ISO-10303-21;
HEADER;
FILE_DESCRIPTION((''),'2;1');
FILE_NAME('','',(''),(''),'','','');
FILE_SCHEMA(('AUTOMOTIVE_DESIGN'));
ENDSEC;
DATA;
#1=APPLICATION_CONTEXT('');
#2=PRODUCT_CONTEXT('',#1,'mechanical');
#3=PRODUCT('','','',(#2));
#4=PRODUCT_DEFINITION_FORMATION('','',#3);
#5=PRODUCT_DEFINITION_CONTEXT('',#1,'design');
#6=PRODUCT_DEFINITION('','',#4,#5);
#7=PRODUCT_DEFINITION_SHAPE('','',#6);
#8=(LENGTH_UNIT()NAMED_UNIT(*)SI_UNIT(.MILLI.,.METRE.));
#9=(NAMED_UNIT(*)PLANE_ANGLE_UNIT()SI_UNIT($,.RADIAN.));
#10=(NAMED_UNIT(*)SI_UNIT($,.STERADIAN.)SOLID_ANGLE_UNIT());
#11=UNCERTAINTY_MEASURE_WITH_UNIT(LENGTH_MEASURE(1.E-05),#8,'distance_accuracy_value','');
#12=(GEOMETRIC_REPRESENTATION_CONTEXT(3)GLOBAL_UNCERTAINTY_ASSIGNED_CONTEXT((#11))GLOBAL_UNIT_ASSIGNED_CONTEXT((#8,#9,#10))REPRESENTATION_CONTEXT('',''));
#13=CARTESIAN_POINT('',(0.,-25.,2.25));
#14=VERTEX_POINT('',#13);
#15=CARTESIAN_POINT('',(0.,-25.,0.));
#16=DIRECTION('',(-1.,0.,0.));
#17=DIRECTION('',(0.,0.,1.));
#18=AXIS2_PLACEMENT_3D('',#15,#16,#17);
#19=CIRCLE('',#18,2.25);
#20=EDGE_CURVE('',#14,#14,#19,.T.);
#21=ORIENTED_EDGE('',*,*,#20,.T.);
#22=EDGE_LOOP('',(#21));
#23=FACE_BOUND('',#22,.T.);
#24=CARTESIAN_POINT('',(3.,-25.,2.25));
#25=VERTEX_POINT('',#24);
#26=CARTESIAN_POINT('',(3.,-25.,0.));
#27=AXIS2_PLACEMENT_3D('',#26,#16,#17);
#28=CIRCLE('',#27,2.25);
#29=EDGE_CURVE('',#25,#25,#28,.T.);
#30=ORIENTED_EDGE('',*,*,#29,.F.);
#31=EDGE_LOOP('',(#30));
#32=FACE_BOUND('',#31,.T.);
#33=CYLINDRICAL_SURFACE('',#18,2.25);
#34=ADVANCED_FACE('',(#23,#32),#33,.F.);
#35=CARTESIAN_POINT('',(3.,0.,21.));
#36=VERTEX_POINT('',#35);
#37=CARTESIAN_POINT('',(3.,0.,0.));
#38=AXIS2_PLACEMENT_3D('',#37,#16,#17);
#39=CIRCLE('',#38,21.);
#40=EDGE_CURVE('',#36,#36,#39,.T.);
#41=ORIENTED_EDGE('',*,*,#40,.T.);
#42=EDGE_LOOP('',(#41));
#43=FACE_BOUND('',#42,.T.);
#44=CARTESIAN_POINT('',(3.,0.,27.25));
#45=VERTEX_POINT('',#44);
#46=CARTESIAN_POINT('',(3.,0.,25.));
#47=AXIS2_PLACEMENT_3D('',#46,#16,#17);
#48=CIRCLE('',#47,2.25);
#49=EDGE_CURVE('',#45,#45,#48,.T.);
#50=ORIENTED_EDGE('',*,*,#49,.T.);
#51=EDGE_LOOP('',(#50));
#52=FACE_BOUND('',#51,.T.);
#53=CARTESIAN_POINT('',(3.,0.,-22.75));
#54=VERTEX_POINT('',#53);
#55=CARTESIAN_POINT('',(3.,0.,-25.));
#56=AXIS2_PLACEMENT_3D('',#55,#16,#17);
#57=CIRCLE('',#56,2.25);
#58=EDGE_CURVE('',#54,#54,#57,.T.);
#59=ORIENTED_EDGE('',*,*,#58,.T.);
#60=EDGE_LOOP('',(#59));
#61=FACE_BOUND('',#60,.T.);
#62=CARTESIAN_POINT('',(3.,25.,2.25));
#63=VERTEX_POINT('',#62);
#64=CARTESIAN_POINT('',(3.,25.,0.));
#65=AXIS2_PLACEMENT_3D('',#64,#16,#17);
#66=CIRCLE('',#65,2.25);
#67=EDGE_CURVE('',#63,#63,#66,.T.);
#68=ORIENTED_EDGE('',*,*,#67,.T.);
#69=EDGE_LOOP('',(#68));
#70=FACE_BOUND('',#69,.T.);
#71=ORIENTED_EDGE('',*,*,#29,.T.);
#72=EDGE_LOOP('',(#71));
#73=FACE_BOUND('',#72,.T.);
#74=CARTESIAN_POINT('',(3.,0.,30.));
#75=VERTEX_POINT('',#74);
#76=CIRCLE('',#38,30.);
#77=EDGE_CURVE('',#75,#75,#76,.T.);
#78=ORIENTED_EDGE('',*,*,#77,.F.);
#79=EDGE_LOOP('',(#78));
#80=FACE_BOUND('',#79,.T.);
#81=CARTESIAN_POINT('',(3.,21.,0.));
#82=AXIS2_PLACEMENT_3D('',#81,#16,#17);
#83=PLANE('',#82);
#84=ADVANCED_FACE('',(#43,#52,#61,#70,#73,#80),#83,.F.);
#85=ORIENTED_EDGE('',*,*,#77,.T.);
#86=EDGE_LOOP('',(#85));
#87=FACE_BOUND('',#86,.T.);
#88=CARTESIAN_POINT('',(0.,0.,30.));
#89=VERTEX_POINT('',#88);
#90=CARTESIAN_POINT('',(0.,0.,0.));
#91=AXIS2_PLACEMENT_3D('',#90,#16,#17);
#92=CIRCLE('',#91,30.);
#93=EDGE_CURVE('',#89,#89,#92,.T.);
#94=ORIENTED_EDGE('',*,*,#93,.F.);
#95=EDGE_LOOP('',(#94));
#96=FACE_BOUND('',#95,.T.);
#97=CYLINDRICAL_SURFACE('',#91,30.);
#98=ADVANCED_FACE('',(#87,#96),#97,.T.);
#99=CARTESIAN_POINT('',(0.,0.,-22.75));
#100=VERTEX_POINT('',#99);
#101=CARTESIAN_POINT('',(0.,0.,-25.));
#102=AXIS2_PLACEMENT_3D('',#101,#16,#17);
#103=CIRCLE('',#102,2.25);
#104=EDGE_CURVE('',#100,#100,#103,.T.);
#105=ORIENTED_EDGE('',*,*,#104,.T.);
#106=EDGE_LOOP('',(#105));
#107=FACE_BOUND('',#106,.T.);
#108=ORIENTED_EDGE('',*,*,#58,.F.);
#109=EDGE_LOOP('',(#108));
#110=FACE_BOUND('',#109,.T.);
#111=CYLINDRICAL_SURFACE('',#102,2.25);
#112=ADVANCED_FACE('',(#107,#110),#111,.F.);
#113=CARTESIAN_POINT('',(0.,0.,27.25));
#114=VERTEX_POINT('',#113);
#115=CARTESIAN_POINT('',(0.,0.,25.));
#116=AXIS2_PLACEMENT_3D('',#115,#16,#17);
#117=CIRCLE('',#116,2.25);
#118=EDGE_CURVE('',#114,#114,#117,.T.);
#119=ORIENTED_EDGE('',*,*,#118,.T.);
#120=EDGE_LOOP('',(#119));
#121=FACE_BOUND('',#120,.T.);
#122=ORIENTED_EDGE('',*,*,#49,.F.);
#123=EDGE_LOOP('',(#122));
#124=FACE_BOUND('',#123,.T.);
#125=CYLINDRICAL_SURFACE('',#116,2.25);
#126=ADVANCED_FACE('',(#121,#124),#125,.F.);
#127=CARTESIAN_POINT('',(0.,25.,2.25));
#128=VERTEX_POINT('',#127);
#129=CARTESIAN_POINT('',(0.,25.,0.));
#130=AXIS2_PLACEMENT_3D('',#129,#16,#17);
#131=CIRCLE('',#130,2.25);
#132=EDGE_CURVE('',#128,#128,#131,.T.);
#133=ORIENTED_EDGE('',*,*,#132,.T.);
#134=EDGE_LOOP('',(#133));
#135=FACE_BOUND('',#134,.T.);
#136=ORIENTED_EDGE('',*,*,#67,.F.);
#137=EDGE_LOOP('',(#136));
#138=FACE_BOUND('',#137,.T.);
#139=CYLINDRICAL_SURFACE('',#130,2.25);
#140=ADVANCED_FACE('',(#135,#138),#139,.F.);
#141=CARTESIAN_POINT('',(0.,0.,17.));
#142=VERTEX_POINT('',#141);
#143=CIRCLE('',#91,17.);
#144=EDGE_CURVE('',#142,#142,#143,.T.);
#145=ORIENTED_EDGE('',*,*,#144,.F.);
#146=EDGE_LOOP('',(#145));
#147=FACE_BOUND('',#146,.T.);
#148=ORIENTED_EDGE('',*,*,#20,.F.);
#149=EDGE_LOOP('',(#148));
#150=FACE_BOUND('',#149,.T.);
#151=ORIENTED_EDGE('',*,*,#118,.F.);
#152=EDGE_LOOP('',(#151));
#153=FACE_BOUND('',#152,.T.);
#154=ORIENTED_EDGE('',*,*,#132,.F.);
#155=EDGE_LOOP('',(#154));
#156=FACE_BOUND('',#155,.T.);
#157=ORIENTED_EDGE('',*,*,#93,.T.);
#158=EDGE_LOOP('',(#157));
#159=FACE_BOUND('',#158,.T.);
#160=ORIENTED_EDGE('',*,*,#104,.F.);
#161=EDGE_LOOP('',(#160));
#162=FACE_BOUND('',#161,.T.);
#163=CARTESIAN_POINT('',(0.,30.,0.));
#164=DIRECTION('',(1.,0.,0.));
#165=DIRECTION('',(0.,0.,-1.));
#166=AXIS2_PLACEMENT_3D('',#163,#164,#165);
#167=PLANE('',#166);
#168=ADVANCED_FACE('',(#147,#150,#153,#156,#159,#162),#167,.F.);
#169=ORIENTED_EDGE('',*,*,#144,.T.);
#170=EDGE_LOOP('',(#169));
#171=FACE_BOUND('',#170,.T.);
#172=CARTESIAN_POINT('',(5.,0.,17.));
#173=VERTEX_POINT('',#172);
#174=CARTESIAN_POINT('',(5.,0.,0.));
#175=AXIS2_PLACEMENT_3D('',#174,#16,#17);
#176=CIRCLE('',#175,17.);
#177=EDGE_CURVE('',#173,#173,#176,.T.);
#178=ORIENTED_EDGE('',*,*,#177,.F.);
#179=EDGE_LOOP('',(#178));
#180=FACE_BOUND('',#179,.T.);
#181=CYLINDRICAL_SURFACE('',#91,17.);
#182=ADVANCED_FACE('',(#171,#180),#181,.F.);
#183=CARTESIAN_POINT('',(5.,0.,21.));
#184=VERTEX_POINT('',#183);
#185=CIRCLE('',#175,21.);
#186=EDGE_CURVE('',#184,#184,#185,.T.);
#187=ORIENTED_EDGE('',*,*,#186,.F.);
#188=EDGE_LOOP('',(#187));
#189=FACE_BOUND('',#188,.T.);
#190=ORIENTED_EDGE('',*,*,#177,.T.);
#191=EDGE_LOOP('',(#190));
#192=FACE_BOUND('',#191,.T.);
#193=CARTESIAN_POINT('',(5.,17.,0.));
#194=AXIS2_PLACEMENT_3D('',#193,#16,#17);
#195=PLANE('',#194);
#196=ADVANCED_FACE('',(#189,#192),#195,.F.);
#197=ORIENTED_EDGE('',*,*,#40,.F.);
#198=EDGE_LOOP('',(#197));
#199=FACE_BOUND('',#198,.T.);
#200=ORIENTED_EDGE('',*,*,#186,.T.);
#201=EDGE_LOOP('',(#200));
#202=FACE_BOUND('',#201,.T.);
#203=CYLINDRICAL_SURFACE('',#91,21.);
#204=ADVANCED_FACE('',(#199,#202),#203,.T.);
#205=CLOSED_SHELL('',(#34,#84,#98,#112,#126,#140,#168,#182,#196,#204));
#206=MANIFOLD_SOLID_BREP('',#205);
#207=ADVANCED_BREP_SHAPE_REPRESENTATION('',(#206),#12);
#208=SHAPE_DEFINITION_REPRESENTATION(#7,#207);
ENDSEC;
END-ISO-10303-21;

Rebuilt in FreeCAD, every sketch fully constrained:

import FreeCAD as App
import Part
import Sketcher
from FreeCAD import Vector


def add_polygon(sketch, points):
    """Adds a closed chain of lines whose ends are joined by coincident constraints."""
    first, n = sketch.GeometryCount, len(points)
    for a, b in zip(points, points[1:] + points[:1]):
        sketch.addGeometry(Part.LineSegment(App.Vector(*a, 0), App.Vector(*b, 0)), False)
    for i in range(n):
        sketch.addConstraint(Sketcher.Constraint("Coincident", first + i, 2, first + (i + 1) % n, 1))

doc = App.newDocument("Part")
body = doc.addObject("PartDesign::Body", "Body")

# Sketch on XY plane
sketch1 = doc.addObject("Sketcher::SketchObject", "Sketch")
body.addObject(sketch1)
sketch1.AttachmentSupport = (doc.XY_Plane, [""])
sketch1.MapMode = "FlatFace"
add_polygon(sketch1, [(0, 17), (5, 17), (5, 21), (3, 21), (3, 30), (0, 30)])  # lines 0-5
sketch1.addConstraint([
    Sketcher.Constraint("Horizontal", 0),
    Sketcher.Constraint("Vertical", 1),
    Sketcher.Constraint("Horizontal", 2),
    Sketcher.Constraint("Vertical", 3),
    Sketcher.Constraint("Horizontal", 4),
    Sketcher.Constraint("Vertical", 5),
    Sketcher.Constraint("PointOnObject", 4, 2, -2),
    Sketcher.Constraint("DistanceX", 0, 1, 0, 2, 5.0),
    Sketcher.Constraint("DistanceX", 2, 2, 2, 1, 2.0),
    Sketcher.Constraint("DistanceY", 1, 1, 1, 2, 4.0),
    Sketcher.Constraint("DistanceY", 3, 1, 3, 2, 9.0),
    Sketcher.Constraint("DistanceY", -1, 1, 0, 2, 17.0),
])
revolution = doc.addObject("PartDesign::Revolution", "Revolution")
body.addObject(revolution)
revolution.Profile = sketch1
revolution.ReferenceAxis = (sketch1, ["H_Axis"])
revolution.Angle = 360

# Sketch on YZ plane
sketch2 = doc.addObject("Sketcher::SketchObject", "Sketch001")
body.addObject(sketch2)
sketch2.AttachmentSupport = (doc.YZ_Plane, [""])
sketch2.MapMode = "FlatFace"
sketch2.addGeometry(Part.Circle(Vector(25, 0, 0), Vector(0, 0, 1), 2.2), False)
sketch2.addConstraint([
    Sketcher.Constraint("PointOnObject", 0, 3, -1),
    Sketcher.Constraint("Diameter", 0, 4.5),
    Sketcher.Constraint("DistanceX", -1, 1, 0, 3, 25.0),
])
doc.recompute()
hole = doc.addObject("PartDesign::Hole", "Hole")
body.addObject(hole)
hole.Profile = sketch2
hole.ThreadType = "None"
hole.Diameter = 4.5
hole.DepthType = "Dimension"
hole.Depth = 3.001
hole.DrillPoint = "Flat"
hole.Reversed = True
doc.recompute()

polarpattern = doc.addObject("PartDesign::PolarPattern", "PolarPattern")
body.addObject(polarpattern)
polarpattern.Originals = [hole]
polarpattern.Axis = (doc.X_Axis, [""])
polarpattern.Angle = 360
polarpattern.Occurrences = 4
body.Tip = polarpattern

doc.recompute()
